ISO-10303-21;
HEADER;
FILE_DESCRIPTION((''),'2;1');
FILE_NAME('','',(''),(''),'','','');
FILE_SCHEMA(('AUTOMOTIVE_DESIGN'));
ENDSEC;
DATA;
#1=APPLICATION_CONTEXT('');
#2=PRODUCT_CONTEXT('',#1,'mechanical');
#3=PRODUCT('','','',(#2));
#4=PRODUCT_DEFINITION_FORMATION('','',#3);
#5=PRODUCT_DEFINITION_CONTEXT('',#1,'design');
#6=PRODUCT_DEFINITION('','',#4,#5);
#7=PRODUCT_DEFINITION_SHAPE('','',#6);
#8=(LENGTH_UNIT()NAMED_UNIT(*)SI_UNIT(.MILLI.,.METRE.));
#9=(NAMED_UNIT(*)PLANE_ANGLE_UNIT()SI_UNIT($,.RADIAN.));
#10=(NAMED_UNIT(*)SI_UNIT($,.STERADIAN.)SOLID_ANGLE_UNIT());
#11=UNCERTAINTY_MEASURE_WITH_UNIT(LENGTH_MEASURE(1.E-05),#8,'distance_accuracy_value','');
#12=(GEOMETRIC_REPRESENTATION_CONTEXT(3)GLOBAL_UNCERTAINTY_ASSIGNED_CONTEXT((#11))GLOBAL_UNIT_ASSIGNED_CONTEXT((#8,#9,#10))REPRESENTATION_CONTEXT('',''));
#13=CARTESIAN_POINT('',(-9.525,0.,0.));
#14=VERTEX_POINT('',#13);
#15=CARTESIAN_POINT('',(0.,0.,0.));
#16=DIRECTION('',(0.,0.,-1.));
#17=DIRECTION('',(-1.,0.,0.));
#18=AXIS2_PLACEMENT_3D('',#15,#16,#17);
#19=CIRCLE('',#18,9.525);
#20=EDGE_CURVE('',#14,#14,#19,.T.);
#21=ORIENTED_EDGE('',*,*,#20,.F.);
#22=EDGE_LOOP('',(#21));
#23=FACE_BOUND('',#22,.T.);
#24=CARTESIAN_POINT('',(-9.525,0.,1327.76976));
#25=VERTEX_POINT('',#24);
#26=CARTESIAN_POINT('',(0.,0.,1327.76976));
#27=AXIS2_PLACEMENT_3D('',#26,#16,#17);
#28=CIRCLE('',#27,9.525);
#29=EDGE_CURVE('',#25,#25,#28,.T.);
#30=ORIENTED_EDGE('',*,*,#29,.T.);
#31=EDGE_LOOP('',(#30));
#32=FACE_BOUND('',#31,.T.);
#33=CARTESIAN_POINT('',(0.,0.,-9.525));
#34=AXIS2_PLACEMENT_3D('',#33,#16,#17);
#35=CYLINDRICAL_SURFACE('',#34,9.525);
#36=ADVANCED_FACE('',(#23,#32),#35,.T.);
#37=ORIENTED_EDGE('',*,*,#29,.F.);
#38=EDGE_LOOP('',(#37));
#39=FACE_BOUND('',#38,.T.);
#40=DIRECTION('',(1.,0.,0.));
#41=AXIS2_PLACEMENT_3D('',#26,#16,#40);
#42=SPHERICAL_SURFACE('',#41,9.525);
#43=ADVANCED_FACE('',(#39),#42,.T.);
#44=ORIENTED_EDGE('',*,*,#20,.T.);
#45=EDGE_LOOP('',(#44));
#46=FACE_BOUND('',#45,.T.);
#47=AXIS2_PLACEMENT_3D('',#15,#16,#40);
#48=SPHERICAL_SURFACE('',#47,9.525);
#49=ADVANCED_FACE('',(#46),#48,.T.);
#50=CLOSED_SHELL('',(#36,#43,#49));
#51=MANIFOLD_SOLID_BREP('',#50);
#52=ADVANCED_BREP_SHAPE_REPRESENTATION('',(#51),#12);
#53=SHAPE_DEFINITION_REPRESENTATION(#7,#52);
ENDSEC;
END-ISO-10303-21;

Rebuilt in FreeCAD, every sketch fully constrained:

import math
import FreeCAD as App
import Part
import Sketcher
Q = App.Units.Quantity

doc = App.newDocument("Part")
body = doc.addObject("PartDesign::Body", "Body")

# Sketch on XZ plane
sketch1 = body.newObject("Sketcher::SketchObject", "Sketch")
sketch1.AttachmentSupport = (doc.getObject("XZ_Plane"), [""])
sketch1.MapMode = "FlatFace"
sketch1.addGeometry([
    Part.LineSegment(App.Vector(10, 1328, 0), App.Vector(10, 0, 0)),
    Part.ArcOfCircle(Part.Circle(App.Vector(0, 0, 0), App.Vector(0, 0, 1), 10), math.radians(-90), math.radians(0)),
    Part.LineSegment(App.Vector(0, -10, 0), App.Vector(0, 1337, 0)),
    Part.ArcOfCircle(Part.Circle(App.Vector(0, 1328, 0), App.Vector(0, 0, 1), 10), math.radians(0), math.radians(90)),
], False)
sketch1.addConstraint([
    Sketcher.Constraint("Tangent", 0, 2, 1, 2),
    Sketcher.Constraint("Coincident", 1, 1, 2, 1),
    Sketcher.Constraint("Coincident", 2, 2, 3, 2),
    Sketcher.Constraint("Tangent", 3, 1, 0, 1),
    Sketcher.Constraint("Vertical", 0),
    Sketcher.Constraint("Vertical", 2),
    Sketcher.Constraint("Coincident", 1, 3, -1, 1),
    Sketcher.Constraint("Equal", 1, 3),
    Sketcher.Constraint("PointOnObject", 1, 1, -2),
    Sketcher.Constraint("Radius", 1, Q("0.375 in")),
    Sketcher.Constraint("DistanceY", 0, 2, 0, 1, Q("52.2744 in")),
])
revolution = body.newObject("PartDesign::Revolution", "Revolution")
revolution.Profile = sketch1
revolution.ReferenceAxis = (sketch1, ["V_Axis"])
revolution.Angle = 360

doc.recompute()
